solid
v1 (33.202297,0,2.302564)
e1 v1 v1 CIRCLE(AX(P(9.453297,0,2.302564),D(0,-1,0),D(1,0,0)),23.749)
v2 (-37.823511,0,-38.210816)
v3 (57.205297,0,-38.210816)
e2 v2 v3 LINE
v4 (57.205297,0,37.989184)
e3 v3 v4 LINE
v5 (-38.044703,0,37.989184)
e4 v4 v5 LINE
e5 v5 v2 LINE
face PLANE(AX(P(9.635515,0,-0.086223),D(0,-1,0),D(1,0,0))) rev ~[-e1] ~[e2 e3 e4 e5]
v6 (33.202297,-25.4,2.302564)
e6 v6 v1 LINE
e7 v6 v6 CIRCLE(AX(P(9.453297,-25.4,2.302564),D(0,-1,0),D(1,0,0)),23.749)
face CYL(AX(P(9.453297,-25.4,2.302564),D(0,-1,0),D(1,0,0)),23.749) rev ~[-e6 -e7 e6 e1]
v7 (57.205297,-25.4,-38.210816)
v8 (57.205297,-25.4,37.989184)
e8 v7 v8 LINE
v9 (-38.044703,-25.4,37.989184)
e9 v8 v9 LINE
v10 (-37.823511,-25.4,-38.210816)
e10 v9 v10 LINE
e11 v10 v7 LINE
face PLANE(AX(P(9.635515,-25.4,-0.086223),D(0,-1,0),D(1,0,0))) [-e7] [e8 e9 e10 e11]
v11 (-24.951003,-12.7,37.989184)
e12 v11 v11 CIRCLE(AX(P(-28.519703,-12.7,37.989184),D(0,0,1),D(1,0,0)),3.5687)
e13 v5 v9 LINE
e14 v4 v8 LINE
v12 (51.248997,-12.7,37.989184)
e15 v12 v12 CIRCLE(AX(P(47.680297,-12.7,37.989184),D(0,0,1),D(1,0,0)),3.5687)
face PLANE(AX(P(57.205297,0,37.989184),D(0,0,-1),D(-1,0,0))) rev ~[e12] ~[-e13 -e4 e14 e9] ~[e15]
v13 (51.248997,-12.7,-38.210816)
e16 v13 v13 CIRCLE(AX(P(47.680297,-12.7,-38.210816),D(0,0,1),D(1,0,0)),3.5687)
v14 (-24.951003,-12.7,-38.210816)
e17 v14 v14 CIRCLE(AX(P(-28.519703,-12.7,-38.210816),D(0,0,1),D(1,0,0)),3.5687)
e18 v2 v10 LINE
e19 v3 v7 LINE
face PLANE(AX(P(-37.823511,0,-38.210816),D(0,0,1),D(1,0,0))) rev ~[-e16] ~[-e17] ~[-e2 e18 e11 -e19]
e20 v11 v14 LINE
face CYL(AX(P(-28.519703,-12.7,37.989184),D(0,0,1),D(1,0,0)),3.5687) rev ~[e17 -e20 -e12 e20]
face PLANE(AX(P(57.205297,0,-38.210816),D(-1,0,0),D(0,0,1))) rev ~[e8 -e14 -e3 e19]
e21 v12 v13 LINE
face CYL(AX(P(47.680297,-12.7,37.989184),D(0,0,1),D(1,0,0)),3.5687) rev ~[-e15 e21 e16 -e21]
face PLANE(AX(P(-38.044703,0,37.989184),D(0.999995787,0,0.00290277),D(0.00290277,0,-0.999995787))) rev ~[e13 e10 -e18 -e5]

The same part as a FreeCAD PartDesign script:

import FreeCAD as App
import Part
import Sketcher
Q = App.Units.Quantity

doc = App.newDocument("Part")
body = doc.addObject("PartDesign::Body", "Body")

# Sketch on XZ plane
sketch1 = body.newObject("Sketcher::SketchObject", "Sketch")
sketch1.AttachmentSupport = (doc.getObject("XZ_Plane"), [""])
sketch1.MapMode = "FlatFace"
sketch1.addGeometry(Part.LineSegment(App.Vector(57, 38, 0), App.Vector(-38, 38, 0)), False)
sketch1.addGeometry(Part.LineSegment(App.Vector(-38, 38, 0), App.Vector(-38, -38, 0)), False)
sketch1.addGeometry(Part.LineSegment(App.Vector(-38, -38, 0), App.Vector(57, -38, 0)), False)
sketch1.addGeometry(Part.LineSegment(App.Vector(57, -38, 0), App.Vector(57, 38, 0)), False)
sketch1.addConstraint(Sketcher.Constraint("Coincident", 0, 2, 1, 1))
sketch1.addConstraint(Sketcher.Constraint("Coincident", 1, 2, 2, 1))
sketch1.addConstraint(Sketcher.Constraint("Coincident", 2, 2, 3, 1))
sketch1.addConstraint(Sketcher.Constraint("Coincident", 3, 2, 0, 1))
sketch1.addConstraint(Sketcher.Constraint("Horizontal", 0))
sketch1.addConstraint(Sketcher.Constraint("Horizontal", 2))
sketch1.addConstraint(Sketcher.Constraint("Vertical", 3))
sketch1.addConstraint(Sketcher.Constraint("DistanceY", 3, 1, 3, 2, Q("3 in")))
sketch1.addConstraint(Sketcher.Constraint("DistanceX", 0, 2, 0, 1, Q("3.75 in")))
sketch1.addConstraint(Sketcher.Constraint("DistanceX", 2, 1, 2, 2, Q("95.028808 mm")))
sketch1.addConstraint(Sketcher.Constraint("DistanceX", 1, 2, -1, 1, Q("37.823511 mm")))
sketch1.addConstraint(Sketcher.Constraint("DistanceY", -1, 1, 0, 2, Q("37.989184 mm")))
pad1 = body.newObject("PartDesign::Pad", "Pad")
pad1.Profile = sketch1
pad1.Length = Q("1 in")

# Sketch on XZ plane
sketch2 = body.newObject("Sketcher::SketchObject", "Sketch001")
sketch2.AttachmentSupport = (doc.getObject("XZ_Plane"), [""])
sketch2.MapMode = "FlatFace"
sketch2.AttachmentOffset = App.Placement(App.Vector(0, 0, 1 * 25.4), App.Rotation())
sketch2.addGeometry(Part.Circle(App.Vector(9, 2, 0), App.Vector(0, 0, 1), 24), False)
sketch2.addConstraint(Sketcher.Constraint("Diameter", 0, Q("1.87 in")))
sketch2.addConstraint(Sketcher.Constraint("DistanceX", -1, 1, 0, 3, Q("9.453297 mm")))
sketch2.addConstraint(Sketcher.Constraint("DistanceY", -1, 1, 0, 3, Q("2.302564 mm")))
pocket1 = body.newObject("PartDesign::Pocket", "Pocket")
pocket1.Profile = sketch2
pocket1.Type = "ThroughAll"

# Sketch on XY plane
sketch3 = body.newObject("Sketcher::SketchObject", "Sketch002")
sketch3.AttachmentSupport = (doc.getObject("XY_Plane"), [""])
sketch3.MapMode = "FlatFace"
sketch3.AttachmentOffset = App.Placement(App.Vector(0, 0, 37.989184), App.Rotation())
sketch3.addGeometry(Part.Circle(App.Vector(-28.5, -12.7, 0), App.Vector(0, 0, 1), 3.6), False)
sketch3.addGeometry(Part.Circle(App.Vector(47.7, -12.7, 0), App.Vector(0, 0, 1), 3.6), False)
sketch3.addConstraint(Sketcher.Constraint("Equal", 0, 1))
sketch3.addConstraint(Sketcher.Constraint("Horizontal", 0, 3, 1, 3))
sketch3.addConstraint(Sketcher.Constraint("Diameter", 0, Q("0.281 in")))
sketch3.addConstraint(Sketcher.Constraint("DistanceX", 0, 3, 1, 3, Q("3 in")))
sketch3.addConstraint(Sketcher.Constraint("DistanceY", 0, 3, -1, 1, Q("0.5 in")))
sketch3.addConstraint(Sketcher.Constraint("DistanceX", 0, 3, -1, 1, Q("28.519703 mm")))
pocket2 = body.newObject("PartDesign::Pocket", "Pocket001")
pocket2.Profile = sketch3
pocket2.Type = "ThroughAll"

doc.recompute()
